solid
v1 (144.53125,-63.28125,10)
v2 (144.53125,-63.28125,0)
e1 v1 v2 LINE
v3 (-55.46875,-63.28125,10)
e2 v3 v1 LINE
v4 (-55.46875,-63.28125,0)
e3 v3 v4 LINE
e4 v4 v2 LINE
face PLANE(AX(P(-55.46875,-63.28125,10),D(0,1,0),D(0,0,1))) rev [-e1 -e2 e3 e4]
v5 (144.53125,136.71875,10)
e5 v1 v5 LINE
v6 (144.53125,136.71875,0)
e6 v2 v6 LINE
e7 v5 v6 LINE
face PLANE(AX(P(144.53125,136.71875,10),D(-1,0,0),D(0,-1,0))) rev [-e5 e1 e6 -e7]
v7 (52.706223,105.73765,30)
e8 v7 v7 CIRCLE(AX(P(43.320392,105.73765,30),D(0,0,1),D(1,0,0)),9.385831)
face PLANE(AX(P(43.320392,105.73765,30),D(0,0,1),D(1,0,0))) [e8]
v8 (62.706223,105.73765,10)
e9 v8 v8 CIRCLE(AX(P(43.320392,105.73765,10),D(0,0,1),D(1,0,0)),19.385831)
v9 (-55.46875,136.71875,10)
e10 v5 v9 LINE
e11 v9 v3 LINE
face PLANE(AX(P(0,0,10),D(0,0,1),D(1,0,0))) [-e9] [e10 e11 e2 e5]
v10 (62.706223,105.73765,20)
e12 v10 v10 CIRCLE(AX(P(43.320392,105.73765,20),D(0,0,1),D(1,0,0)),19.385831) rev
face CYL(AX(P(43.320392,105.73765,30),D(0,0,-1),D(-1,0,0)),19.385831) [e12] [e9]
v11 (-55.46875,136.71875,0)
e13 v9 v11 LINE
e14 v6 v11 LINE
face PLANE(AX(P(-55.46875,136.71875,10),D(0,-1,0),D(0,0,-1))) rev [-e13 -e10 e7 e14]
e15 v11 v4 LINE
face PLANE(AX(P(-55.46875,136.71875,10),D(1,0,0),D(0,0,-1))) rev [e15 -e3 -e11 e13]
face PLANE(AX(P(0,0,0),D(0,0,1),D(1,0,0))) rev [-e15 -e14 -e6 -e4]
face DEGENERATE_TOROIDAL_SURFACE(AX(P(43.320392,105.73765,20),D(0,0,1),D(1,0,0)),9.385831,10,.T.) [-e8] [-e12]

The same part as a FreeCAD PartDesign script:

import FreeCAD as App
import Part
import Sketcher

V = App.Vector
Q = App.Units.Quantity


def edges_at(feature, points):
    """Names of the edges that pass closest to the given points."""
    edges = feature.Shape.Edges
    near = lambda p: min(range(len(edges)), key=lambda i: edges[i].distToShape(Part.Vertex(*p))[0])
    return sorted({f"Edge{near(p) + 1}" for p in points})

doc = App.newDocument("Part")
body = doc.addObject("PartDesign::Body", "Body")

# Sketch on XY plane
sketch1 = doc.addObject("Sketcher::SketchObject", "Sketch")
body.addObject(sketch1)
sketch1.AttachmentSupport = (doc.XY_Plane, [""])
sketch1.MapMode = "FlatFace"
sketch1.addGeometry([
    Part.LineSegment(V(-55, 137, 0), V(-55, -63, 0)),
    Part.LineSegment(V(-55, -63, 0), V(145, -63, 0)),
    Part.LineSegment(V(145, -63, 0), V(145, 137, 0)),
    Part.LineSegment(V(145, 137, 0), V(-55, 137, 0)),
], False)
sketch1.addConstraint([
    Sketcher.Constraint("Coincident", 0, 2, 1, 1),
    Sketcher.Constraint("Coincident", 1, 2, 2, 1),
    Sketcher.Constraint("Coincident", 2, 2, 3, 1),
    Sketcher.Constraint("Coincident", 3, 2, 0, 1),
    Sketcher.Constraint("Vertical", 0),
    Sketcher.Constraint("Horizontal", 1),
    Sketcher.Constraint("Vertical", 2),
    Sketcher.Constraint("Horizontal", 3),
    Sketcher.Constraint("Equal", 3, 0),
    Sketcher.Constraint("DistanceX", 1, 1, 1, 2, Q("200 mm")),
    Sketcher.Constraint("DistanceX", 0, 2, -1, 1, Q("55.46875 mm")),
    Sketcher.Constraint("DistanceY", 0, 2, -1, 1, Q("63.28125 mm")),
])
pad1 = doc.addObject("PartDesign::Pad", "Pad")
body.addObject(pad1)
pad1.Profile = sketch1
pad1.Length = 10

# Sketch on XY plane
sketch2 = doc.addObject("Sketcher::SketchObject", "Sketch001")
body.addObject(sketch2)
sketch2.AttachmentSupport = (doc.XY_Plane, [""])
sketch2.MapMode = "FlatFace"
sketch2.AttachmentOffset = App.Placement(V(0, 0, 10), App.Rotation())
sketch2.addGeometry(Part.Circle(V(43, 106, 0), V(0, 0, 1), 19), False)
sketch2.addConstraint([
    Sketcher.Constraint("Diameter", 0, Q("38.771662 mm")),
    Sketcher.Constraint("DistanceY", -1, 1, 0, 3, Q("105.73765 mm")),
    Sketcher.Constraint("DistanceX", -1, 1, 0, 3, Q("43.320392 mm")),
])
pad2 = doc.addObject("PartDesign::Pad", "Pad001")
body.addObject(pad2)
pad2.Profile = sketch2
pad2.Length = 20
doc.recompute()

fillet = doc.addObject("PartDesign::Fillet", "Fillet")
body.addObject(fillet)
fillet.Base = (pad2, edges_at(pad2, [(23.935, 105.738, 30)]))
fillet.Radius = 10

doc.recompute()
